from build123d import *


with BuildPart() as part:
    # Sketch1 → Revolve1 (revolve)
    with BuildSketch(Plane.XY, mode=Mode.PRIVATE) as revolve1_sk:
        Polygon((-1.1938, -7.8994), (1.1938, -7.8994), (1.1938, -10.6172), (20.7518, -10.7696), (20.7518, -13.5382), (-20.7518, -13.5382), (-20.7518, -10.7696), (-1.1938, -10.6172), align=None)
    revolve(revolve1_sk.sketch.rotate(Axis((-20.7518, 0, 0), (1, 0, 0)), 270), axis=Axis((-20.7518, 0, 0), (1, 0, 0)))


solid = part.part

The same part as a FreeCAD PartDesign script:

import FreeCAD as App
import Part
import Sketcher

V = App.Vector
Q = App.Units.Quantity

doc = App.newDocument("Part")
body = doc.addObject("PartDesign::Body", "Body")

sketch1 = body.newObject("Sketcher::SketchObject", "Sketch")
sketch1.AttachmentSupport = (doc.getObject("XY_Plane"), [""])
sketch1.MapMode = "FlatFace"
sketch1.addGeometry(Part.LineSegment(V(1.2, -7.9, 0), V(-1.2, -7.9, 0)), False)
sketch1.addGeometry(Part.LineSegment(V(-1.2, -7.9, 0), V(-1.2, -10.6, 0)), False)
sketch1.addGeometry(Part.LineSegment(V(-1.2, -10.6, 0), V(-20.8, -10.8, 0)), False)
sketch1.addGeometry(Part.LineSegment(V(-20.8, -10.8, 0), V(-20.8, -13.5, 0)), False)
sketch1.addGeometry(Part.LineSegment(V(-20.8, -13.5, 0), V(20.8, -13.5, 0)), False)
sketch1.addGeometry(Part.LineSegment(V(20.8, -13.5, 0), V(20.8, -10.8, 0)), False)
sketch1.addGeometry(Part.LineSegment(V(20.8, -10.8, 0), V(1.2, -10.6, 0)), False)
sketch1.addGeometry(Part.LineSegment(V(1.2, -10.6, 0), V(1.2, -7.9, 0)), False)
sketch1.addConstraint(Sketcher.Constraint("Coincident", 0, 2, 1, 1))
sketch1.addConstraint(Sketcher.Constraint("Coincident", 1, 2, 2, 1))
sketch1.addConstraint(Sketcher.Constraint("Coincident", 2, 2, 3, 1))
sketch1.addConstraint(Sketcher.Constraint("Coincident", 3, 2, 4, 1))
sketch1.addConstraint(Sketcher.Constraint("Coincident", 4, 2, 5, 1))
sketch1.addConstraint(Sketcher.Constraint("Coincident", 5, 2, 6, 1))
sketch1.addConstraint(Sketcher.Constraint("Coincident", 6, 2, 7, 1))
sketch1.addConstraint(Sketcher.Constraint("Coincident", 7, 2, 0, 1))
sketch1.addConstraint(Sketcher.Constraint("Horizontal", 0))
sketch1.addConstraint(Sketcher.Constraint("Vertical", 1))
sketch1.addConstraint(Sketcher.Constraint("Vertical", 3))
sketch1.addConstraint(Sketcher.Constraint("Horizontal", 4))
sketch1.addConstraint(Sketcher.Constraint("Vertical", 5))
sketch1.addConstraint(Sketcher.Constraint("Vertical", 7))
sketch1.addConstraint(Sketcher.Constraint("Symmetric", 2, 2, 5, 2, -2))
sketch1.addConstraint(Sketcher.Constraint("Symmetric", 1, 2, 6, 2, -2))
sketch1.addConstraint(Sketcher.Constraint("DistanceX", 0, 2, 0, 1, Q("0.094 in")))
sketch1.addConstraint(Sketcher.Constraint("DistanceX", 4, 1, 4, 2, Q("1.634 in")))
sketch1.addConstraint(Sketcher.Constraint("DistanceY", 1, 2, 1, 1, Q("0.107 in")))
sketch1.addConstraint(Sketcher.Constraint("DistanceY", 3, 2, 3, 1, Q("0.109 in")))
sketch1.addConstraint(Sketcher.Constraint("DistanceY", 0, 2, -1, 1, Q("0.311 in")))
sketch1.addConstraint(Sketcher.Constraint("DistanceY", 2, 2, -1, 1, Q("0.424 in")))
revolution = body.newObject("PartDesign::Revolution", "Revolution")
revolution.Profile = sketch1
revolution.ReferenceAxis = (sketch1, ["H_Axis"])
revolution.Angle = 360

doc.recompute()
